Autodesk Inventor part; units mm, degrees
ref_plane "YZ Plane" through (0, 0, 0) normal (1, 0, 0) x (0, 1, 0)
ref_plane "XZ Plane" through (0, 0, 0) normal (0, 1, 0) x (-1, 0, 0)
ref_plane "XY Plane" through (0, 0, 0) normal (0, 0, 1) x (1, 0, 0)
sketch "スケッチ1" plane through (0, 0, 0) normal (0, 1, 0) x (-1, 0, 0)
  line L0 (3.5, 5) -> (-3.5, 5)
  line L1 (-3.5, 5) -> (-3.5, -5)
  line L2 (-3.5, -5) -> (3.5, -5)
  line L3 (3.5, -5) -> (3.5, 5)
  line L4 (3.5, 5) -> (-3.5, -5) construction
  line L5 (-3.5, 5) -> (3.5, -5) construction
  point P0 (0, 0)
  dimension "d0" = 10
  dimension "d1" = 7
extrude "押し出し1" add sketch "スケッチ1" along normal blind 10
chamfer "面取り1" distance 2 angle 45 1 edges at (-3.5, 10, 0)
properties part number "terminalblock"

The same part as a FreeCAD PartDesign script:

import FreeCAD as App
import Part
import Sketcher
from FreeCAD import Vector
Q = App.Units.Quantity


def edges_at(feature, points):
    """Names of the edges that pass closest to the given points."""
    edges = feature.Shape.Edges
    near = lambda p: min(range(len(edges)), key=lambda i: edges[i].distToShape(Part.Vertex(*p))[0])
    return sorted({f"Edge{near(p) + 1}" for p in points})


def add_polygon(sketch, points):
    """Adds a closed chain of lines whose ends are joined by coincident constraints."""
    first, n = sketch.GeometryCount, len(points)
    for a, b in zip(points, points[1:] + points[:1]):
        sketch.addGeometry(Part.LineSegment(App.Vector(*a, 0), App.Vector(*b, 0)), False)
    for i in range(n):
        sketch.addConstraint(Sketcher.Constraint("Coincident", first + i, 2, first + (i + 1) % n, 1))

doc = App.newDocument("Part")
body = doc.addObject("PartDesign::Body", "Body")

# Sketch on XZ plane
sketch1 = doc.addObject("Sketcher::SketchObject", "Sketch")
body.addObject(sketch1)
sketch1.AttachmentSupport = (doc.XZ_Plane, [""])
sketch1.MapMode = "FlatFace"
add_polygon(sketch1, [(-4, -5), (-4, 5), (4, 5), (4, -5)])  # lines 0-3
sketch1.addConstraint([
    Sketcher.Constraint("Vertical", 0),
    Sketcher.Constraint("Horizontal", 1),
    Sketcher.Constraint("Vertical", 2),
    Sketcher.Constraint("Horizontal", 3),
    Sketcher.Constraint("Symmetric", 0, 2, 2, 2, -1, 1),
    Sketcher.Constraint("DistanceX", 1, 1, 1, 2, Q("7 mm")),
    Sketcher.Constraint("DistanceY", 0, 1, 0, 2, Q("10 mm")),
])
pad1 = doc.addObject("PartDesign::Pad", "Pad")
body.addObject(pad1)
pad1.Profile = sketch1
pad1.Length = 10
pad1.Reversed = True
doc.recompute()

chamfer = doc.addObject("PartDesign::Chamfer", "Chamfer")
body.addObject(chamfer)
chamfer.Base = (pad1, edges_at(pad1, [(-3.5, 10, 0)]))
chamfer.Size = 2

doc.recompute()
